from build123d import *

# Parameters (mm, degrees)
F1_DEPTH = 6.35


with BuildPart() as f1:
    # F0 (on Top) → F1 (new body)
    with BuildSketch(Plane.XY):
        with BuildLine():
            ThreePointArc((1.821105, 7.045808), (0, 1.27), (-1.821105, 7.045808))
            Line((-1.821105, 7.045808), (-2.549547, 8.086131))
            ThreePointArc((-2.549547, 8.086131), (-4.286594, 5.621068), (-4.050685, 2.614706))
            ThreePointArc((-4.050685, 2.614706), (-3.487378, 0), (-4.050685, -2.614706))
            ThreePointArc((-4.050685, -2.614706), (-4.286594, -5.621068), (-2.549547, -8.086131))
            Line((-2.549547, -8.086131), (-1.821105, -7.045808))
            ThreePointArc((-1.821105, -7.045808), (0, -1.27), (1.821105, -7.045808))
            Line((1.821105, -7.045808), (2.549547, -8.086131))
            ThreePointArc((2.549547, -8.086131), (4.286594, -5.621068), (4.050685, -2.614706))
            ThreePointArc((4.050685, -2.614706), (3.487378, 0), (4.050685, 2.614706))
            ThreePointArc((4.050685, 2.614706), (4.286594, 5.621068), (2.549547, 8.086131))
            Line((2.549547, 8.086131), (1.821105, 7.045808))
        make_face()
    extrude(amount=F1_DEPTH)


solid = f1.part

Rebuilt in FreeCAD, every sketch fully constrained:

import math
import FreeCAD as App
import Part
import Sketcher
from FreeCAD import Vector
Q = App.Units.Quantity

doc = App.newDocument("Part")
body = doc.addObject("PartDesign::Body", "Body")

sketch1 = body.newObject("Sketcher::SketchObject", "Sketch")
sketch1.AttachmentSupport = (doc.getObject("XY_Plane"), [""])
sketch1.MapMode = "FlatFace"
sketch1.addGeometry([
    Part.ArcOfCircle(Part.Circle(Vector(0, 4.4, 0), Vector(0, 0, 1), 3.2), math.radians(125), math.radians(415)),
    Part.LineSegment(Vector(-1.8, 7, 0), Vector(-2.5, 8.1, 0)),
    Part.ArcOfCircle(Part.Circle(Vector(0, 4.4, 0), Vector(0, 0, 1), 4.4), math.radians(125), math.radians(204)),
    Part.ArcOfCircle(Part.Circle(Vector(-9.8, 0, 0), Vector(0, 0, 1), 6.4), math.radians(-24), math.radians(24)),
    Part.ArcOfCircle(Part.Circle(Vector(0, -4.4, 0), Vector(0, 0, 1), 4.4), math.radians(156), math.radians(235)),
    Part.LineSegment(Vector(-2.5, -8.1, 0), Vector(-1.8, -7, 0)),
    Part.ArcOfCircle(Part.Circle(Vector(0, -4.4, 0), Vector(0, 0, 1), 3.2), math.radians(-55), math.radians(235)),
    Part.LineSegment(Vector(1.8, -7, 0), Vector(2.5, -8.1, 0)),
    Part.ArcOfCircle(Part.Circle(Vector(0, -4.4, 0), Vector(0, 0, 1), 4.4), math.radians(-55), math.radians(24)),
    Part.ArcOfCircle(Part.Circle(Vector(9.8, 0, 0), Vector(0, 0, 1), 6.4), math.radians(156), math.radians(204)),
    Part.ArcOfCircle(Part.Circle(Vector(0, 4.4, 0), Vector(0, 0, 1), 4.4), math.radians(-24), math.radians(55)),
    Part.LineSegment(Vector(2.5, 8.1, 0), Vector(1.8, 7, 0)),
], False)
sketch1.addConstraint([
    Sketcher.Constraint("Coincident", 0, 1, 1, 1),
    Sketcher.Constraint("Coincident", 1, 2, 2, 1),
    Sketcher.Constraint("Tangent", 2, 2, 3, 2),
    Sketcher.Constraint("Tangent", 3, 1, 4, 1),
    Sketcher.Constraint("Coincident", 4, 2, 5, 1),
    Sketcher.Constraint("Coincident", 5, 2, 6, 2),
    Sketcher.Constraint("Coincident", 6, 1, 7, 1),
    Sketcher.Constraint("Coincident", 7, 2, 8, 1),
    Sketcher.Constraint("Tangent", 8, 2, 9, 2),
    Sketcher.Constraint("Tangent", 9, 1, 10, 1),
    Sketcher.Constraint("Coincident", 10, 2, 11, 1),
    Sketcher.Constraint("Coincident", 11, 2, 0, 2),
    Sketcher.Constraint("Coincident", 2, 3, 0, 3),
    Sketcher.Constraint("Coincident", 6, 3, 4, 3),
    Sketcher.Constraint("Coincident", 8, 3, 4, 3),
    Sketcher.Constraint("Coincident", 10, 3, 0, 3),
    Sketcher.Constraint("Equal", 2, 4),
    Sketcher.Constraint("Equal", 0, 6),
    Sketcher.Constraint("Equal", 4, 8),
    Sketcher.Constraint("Equal", 3, 9),
    Sketcher.Constraint("Equal", 8, 10),
    Sketcher.Constraint("Symmetric", 0, 3, 4, 3, -1, 1),
    Sketcher.Constraint("Symmetric", 5, 2, 6, 1, -2),
    Sketcher.Constraint("Parallel", 1, 7),
    Sketcher.Constraint("Parallel", 5, 11),
    Sketcher.Constraint("Horizontal", 4, 2, 7, 2),
    Sketcher.Constraint("Horizontal", 1, 2, 10, 2),
    Sketcher.Constraint("Vertical", 1, 2, 4, 2),
    Sketcher.Constraint("Radius", 3, Q("0.2500001 in")),
    Sketcher.Constraint("Angle", 1, Q("125 deg")),
    Sketcher.Constraint("Radius", 0, Q("0.125 in")),
    Sketcher.Constraint("Radius", 2, Q("0.175 in")),
    Sketcher.Constraint("DistanceY", 4, 3, 2, 3, Q("0.35 in")),
    Sketcher.Constraint("DistanceX", 2, 2, 1, 2, Q("0.0590999 in")),
])
pad1 = body.newObject("PartDesign::Pad", "Pad")
pad1.Profile = sketch1
pad1.Length = Q("0.25 in")

doc.recompute()
